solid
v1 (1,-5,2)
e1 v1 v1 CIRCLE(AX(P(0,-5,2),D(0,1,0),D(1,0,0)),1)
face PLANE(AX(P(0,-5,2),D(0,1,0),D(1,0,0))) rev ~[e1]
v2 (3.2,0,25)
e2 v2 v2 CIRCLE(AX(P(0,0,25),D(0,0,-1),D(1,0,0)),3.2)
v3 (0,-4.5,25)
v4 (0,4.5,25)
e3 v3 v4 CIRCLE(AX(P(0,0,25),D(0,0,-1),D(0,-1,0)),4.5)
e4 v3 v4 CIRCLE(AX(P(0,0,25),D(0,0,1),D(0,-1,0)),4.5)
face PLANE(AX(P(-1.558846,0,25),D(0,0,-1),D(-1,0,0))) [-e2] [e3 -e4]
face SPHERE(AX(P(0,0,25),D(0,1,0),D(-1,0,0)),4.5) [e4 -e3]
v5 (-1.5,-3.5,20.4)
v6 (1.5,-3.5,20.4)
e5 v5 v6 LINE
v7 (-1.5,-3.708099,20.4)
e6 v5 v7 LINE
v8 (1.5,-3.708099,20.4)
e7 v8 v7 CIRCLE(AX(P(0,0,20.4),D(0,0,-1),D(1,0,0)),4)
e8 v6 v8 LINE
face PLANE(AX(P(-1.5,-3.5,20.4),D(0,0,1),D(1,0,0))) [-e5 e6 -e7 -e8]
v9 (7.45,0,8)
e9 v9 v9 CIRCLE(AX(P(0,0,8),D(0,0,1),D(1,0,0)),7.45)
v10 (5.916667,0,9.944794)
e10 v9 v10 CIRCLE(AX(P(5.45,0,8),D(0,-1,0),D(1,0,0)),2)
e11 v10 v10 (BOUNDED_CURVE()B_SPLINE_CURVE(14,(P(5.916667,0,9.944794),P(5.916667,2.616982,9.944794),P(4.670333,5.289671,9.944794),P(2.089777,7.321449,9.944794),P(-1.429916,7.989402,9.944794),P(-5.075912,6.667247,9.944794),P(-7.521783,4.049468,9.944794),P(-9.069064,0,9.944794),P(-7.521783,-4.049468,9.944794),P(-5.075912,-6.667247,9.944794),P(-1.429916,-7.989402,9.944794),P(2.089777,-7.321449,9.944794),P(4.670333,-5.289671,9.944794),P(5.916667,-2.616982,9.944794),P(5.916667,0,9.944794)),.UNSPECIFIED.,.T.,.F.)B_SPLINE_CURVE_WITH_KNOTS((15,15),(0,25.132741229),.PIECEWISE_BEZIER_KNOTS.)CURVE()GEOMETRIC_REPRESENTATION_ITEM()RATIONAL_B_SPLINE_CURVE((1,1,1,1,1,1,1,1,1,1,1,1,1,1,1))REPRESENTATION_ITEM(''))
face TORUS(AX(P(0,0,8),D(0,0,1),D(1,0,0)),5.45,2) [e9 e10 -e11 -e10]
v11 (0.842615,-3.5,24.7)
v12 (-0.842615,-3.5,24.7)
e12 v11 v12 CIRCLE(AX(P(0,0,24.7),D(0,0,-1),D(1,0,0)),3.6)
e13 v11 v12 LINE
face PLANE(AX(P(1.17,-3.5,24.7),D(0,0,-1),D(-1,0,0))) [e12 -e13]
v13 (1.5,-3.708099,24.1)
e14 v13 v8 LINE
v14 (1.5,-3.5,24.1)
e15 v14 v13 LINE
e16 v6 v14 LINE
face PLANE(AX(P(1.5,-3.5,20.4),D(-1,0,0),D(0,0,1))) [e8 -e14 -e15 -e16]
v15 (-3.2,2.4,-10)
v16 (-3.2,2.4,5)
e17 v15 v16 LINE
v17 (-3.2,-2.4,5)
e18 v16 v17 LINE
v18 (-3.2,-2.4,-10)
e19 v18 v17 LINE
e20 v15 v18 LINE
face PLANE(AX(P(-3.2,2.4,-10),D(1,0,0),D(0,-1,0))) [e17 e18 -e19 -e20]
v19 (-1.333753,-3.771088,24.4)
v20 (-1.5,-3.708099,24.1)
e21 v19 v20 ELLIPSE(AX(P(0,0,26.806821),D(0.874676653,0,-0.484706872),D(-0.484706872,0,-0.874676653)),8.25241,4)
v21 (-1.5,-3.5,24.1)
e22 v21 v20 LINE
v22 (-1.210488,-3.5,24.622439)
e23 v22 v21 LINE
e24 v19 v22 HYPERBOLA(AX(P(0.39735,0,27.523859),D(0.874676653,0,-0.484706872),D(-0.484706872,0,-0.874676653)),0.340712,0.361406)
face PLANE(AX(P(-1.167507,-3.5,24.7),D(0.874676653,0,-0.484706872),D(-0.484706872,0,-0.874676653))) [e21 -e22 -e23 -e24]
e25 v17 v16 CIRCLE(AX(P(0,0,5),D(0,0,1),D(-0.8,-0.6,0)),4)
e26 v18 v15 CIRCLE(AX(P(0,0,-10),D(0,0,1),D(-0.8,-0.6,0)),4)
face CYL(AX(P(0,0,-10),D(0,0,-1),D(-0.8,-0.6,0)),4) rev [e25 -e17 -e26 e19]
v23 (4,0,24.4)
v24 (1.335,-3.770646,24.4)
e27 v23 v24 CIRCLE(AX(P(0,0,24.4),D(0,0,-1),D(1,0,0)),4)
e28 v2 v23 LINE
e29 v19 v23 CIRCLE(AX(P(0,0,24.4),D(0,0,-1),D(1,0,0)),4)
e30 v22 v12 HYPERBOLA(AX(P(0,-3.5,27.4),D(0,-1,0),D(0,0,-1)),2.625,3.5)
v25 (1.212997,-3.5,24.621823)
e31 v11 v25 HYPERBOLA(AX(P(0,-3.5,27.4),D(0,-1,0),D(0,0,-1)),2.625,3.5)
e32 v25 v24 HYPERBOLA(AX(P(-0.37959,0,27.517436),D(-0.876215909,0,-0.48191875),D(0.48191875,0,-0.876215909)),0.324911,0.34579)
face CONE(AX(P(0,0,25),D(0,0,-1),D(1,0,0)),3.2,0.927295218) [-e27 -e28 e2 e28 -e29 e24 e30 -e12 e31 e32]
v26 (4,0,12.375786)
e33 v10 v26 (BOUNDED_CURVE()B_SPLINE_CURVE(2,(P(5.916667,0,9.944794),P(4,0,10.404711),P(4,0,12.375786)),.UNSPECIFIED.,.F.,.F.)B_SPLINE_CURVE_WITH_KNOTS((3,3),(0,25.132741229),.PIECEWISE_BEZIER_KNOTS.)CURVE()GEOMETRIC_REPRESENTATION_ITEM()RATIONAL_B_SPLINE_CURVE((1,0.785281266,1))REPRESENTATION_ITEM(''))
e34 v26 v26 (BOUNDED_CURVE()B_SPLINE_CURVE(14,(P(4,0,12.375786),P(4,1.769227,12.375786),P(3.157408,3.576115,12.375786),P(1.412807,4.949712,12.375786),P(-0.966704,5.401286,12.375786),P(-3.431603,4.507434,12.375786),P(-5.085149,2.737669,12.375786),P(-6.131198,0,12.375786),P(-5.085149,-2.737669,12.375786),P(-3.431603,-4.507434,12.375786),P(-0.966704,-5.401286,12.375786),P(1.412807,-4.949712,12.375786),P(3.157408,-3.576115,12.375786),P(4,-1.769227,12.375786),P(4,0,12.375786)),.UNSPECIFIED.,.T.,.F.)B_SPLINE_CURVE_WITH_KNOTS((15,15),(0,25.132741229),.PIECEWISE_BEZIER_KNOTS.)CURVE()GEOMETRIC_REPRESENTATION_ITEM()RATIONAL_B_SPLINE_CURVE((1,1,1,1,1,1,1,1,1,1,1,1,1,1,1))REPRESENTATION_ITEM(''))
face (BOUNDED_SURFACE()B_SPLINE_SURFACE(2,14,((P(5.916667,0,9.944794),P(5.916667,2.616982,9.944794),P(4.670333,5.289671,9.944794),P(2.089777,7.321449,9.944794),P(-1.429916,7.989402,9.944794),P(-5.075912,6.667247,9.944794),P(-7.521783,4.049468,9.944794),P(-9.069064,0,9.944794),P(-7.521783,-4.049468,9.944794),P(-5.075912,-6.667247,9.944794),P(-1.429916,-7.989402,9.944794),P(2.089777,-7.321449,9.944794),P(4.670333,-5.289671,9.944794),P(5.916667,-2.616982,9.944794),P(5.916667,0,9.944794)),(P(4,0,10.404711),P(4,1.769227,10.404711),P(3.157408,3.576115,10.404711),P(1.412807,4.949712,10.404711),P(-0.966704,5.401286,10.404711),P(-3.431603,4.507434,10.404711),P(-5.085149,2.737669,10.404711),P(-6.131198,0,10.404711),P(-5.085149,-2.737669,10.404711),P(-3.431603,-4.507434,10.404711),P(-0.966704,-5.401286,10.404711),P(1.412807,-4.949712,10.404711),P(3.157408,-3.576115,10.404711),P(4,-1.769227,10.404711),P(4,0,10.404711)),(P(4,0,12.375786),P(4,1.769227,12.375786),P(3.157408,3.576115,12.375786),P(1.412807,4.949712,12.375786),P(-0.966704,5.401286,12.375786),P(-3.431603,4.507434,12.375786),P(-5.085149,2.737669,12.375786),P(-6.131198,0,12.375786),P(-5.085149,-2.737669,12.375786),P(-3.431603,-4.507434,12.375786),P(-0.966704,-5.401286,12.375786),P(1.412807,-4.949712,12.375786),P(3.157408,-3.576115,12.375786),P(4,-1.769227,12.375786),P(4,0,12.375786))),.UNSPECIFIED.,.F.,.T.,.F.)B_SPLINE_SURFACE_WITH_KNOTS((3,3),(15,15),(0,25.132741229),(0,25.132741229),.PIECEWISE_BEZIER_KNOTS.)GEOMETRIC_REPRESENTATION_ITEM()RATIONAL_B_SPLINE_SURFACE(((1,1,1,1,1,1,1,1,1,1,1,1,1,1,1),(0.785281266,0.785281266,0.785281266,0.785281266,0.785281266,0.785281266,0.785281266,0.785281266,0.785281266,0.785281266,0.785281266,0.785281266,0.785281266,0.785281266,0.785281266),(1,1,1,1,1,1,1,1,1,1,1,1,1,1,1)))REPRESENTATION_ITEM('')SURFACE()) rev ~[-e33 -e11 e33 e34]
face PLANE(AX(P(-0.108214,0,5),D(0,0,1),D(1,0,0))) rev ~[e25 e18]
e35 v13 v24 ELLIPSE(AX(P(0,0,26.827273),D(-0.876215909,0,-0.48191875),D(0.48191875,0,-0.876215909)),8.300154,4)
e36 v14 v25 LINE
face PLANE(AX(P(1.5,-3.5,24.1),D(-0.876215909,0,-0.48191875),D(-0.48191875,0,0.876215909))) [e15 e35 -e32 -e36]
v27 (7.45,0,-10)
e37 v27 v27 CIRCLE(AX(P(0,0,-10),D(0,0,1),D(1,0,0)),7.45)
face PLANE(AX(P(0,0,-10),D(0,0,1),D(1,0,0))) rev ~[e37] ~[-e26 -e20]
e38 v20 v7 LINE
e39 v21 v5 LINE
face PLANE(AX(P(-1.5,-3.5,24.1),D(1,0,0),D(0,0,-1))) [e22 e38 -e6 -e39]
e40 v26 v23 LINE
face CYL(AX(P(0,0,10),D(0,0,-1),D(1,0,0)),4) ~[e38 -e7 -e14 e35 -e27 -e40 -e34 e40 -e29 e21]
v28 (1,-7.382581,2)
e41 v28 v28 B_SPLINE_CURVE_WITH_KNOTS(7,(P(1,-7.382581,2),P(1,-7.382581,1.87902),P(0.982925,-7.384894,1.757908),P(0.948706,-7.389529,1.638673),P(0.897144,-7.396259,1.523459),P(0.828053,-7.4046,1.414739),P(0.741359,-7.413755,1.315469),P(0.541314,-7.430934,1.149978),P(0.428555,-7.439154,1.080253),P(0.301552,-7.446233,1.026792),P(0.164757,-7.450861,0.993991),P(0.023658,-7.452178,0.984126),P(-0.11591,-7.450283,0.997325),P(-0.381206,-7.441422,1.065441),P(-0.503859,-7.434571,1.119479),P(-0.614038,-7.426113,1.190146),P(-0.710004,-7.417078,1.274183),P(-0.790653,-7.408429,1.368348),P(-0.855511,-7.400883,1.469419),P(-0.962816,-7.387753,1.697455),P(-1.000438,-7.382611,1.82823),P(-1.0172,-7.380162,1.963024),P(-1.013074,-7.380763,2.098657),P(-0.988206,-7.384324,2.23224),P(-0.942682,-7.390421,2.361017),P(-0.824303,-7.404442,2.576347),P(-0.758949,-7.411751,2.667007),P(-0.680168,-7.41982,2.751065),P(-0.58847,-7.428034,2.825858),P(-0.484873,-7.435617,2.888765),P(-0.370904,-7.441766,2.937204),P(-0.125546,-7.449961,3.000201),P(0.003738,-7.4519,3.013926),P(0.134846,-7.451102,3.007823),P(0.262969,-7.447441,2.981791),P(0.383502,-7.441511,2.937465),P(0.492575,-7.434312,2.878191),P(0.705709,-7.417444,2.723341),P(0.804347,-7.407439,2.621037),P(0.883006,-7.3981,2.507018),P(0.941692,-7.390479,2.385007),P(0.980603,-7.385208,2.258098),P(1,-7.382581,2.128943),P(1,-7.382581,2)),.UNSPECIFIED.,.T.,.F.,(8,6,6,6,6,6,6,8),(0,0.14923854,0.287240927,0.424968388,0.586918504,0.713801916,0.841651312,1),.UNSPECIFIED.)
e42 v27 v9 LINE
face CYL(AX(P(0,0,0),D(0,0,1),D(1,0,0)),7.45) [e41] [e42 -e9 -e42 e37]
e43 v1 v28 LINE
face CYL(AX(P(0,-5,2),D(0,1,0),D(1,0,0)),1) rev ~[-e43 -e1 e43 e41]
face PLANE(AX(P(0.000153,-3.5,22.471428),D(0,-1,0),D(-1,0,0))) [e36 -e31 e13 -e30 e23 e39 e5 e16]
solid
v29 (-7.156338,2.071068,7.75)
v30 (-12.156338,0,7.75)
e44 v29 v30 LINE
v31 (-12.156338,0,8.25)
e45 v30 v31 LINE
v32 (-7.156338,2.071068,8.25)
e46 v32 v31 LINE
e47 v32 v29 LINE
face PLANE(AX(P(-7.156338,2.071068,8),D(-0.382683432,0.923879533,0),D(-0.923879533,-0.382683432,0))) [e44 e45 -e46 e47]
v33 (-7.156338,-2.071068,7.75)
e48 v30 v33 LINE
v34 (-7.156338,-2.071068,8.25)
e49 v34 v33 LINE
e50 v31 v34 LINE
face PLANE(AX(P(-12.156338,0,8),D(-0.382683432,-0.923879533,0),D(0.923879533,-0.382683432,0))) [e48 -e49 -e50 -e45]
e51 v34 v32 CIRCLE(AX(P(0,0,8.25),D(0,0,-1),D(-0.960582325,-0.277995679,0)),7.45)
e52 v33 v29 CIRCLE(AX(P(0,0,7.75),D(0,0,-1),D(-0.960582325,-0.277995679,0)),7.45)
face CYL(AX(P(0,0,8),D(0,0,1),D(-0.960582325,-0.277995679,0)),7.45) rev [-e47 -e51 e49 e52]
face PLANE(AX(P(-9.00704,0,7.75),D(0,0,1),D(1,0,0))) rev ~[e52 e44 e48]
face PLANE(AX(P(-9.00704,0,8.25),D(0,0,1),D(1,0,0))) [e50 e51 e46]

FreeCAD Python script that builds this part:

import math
import FreeCAD as App
import Part
import Sketcher
Q = App.Units.Quantity


def edges_at(feature, points):
    """Names of the edges that pass closest to the given points."""
    edges = feature.Shape.Edges
    near = lambda p: min(range(len(edges)), key=lambda i: edges[i].distToShape(Part.Vertex(*p))[0])
    return sorted({f"Edge{near(p) + 1}" for p in points})


def add_polygon(sketch, points):
    """Adds a closed chain of lines whose ends are joined by coincident constraints."""
    first, n = sketch.GeometryCount, len(points)
    for a, b in zip(points, points[1:] + points[:1]):
        sketch.addGeometry(Part.LineSegment(App.Vector(*a, 0), App.Vector(*b, 0)), False)
    for i in range(n):
        sketch.addConstraint(Sketcher.Constraint("Coincident", first + i, 2, first + (i + 1) % n, 1))

doc = App.newDocument("Part")
body = doc.addObject("PartDesign::Body", "Body")

sketch1 = body.newObject("Sketcher::SketchObject", "Sketch")
sketch1.AttachmentSupport = (doc.getObject("XY_Plane"), [""])
sketch1.MapMode = "FlatFace"
sketch1.addGeometry(Part.Circle(App.Vector(0, 0, 0), App.Vector(0, 0, 1), 7), False)
sketch1.addConstraint([
    Sketcher.Constraint("Coincident", 0, 3, -1, 1),
    Sketcher.Constraint("Diameter", 0, 14.9),
])
pad1 = body.newObject("PartDesign::Pad", "Pad")
pad1.Profile = sketch1
pad1.Length = 20
pad1.Midplane = True

sketch2 = body.newObject("Sketcher::SketchObject", "Sketch001")
sketch2.AttachmentSupport = (doc.getObject("XY_Plane"), [""])
sketch2.MapMode = "FlatFace"
sketch2.AttachmentOffset = App.Placement(App.Vector(0, 0, 10), App.Rotation())
sketch2.addGeometry(Part.Circle(App.Vector(0, 0, 0), App.Vector(0, 0, 1), 4), False)
sketch2.addConstraint([
    Sketcher.Constraint("Coincident", 0, 3, -1, 1),
    Sketcher.Constraint("Diameter", 0, 8.0),
])
pad2 = body.newObject("PartDesign::Pad", "Pad001")
pad2.Profile = sketch2
pad2.Length = 15
doc.recompute()

fillet = body.newObject("PartDesign::Fillet", "Fillet")
fillet.Base = (pad2, edges_at(pad2, [(-7.45, 0, 10)]))
fillet.Radius = 2
doc.recompute()

fillet2 = body.newObject("PartDesign::Fillet", "Fillet001")
fillet2.Base = (fillet, edges_at(fillet, [(-4, 0, 10)]))
fillet2.Radius = 2.5

sketch3 = body.newObject("Sketcher::SketchObject", "Sketch002")
sketch3.AttachmentSupport = (doc.getObject("XY_Plane"), [""])
sketch3.MapMode = "FlatFace"
sketch3.AttachmentOffset = App.Placement(App.Vector(0, 0, 25), App.Rotation())
sketch3.addGeometry([
    Part.LineSegment(App.Vector(0, -4.5, 0), App.Vector(0, 4.5, 0)),
    Part.ArcOfCircle(Part.Circle(App.Vector(0, 0, 0), App.Vector(0, 0, 1), 4.5), math.radians(90), math.radians(270)),
], False)
sketch3.addConstraint([
    Sketcher.Constraint("Coincident", 0, 1, 1, 2),
    Sketcher.Constraint("Coincident", 1, 1, 0, 2),
    Sketcher.Constraint("Vertical", 0),
    Sketcher.Constraint("Coincident", 1, 3, -1, 1),
    Sketcher.Constraint("PointOnObject", 0, 1, -2),
    Sketcher.Constraint("Radius", 1, 4.5),
])
revolution = body.newObject("PartDesign::Revolution", "Revolution")
revolution.Profile = sketch3
revolution.ReferenceAxis = (sketch3, ["V_Axis"])
revolution.Angle = 180

sketch4 = body.newObject("Sketcher::SketchObject", "Sketch003")
sketch4.AttachmentSupport = (doc.getObject("XZ_Plane"), [""])
sketch4.MapMode = "FlatFace"
add_polygon(sketch4, [(3.2, 25), (4, 25), (4, 24.4)])
sketch4.addConstraint([
    Sketcher.Constraint("Horizontal", 0),
    Sketcher.Constraint("Vertical", 1),
    Sketcher.Constraint("Distance", 2, 1.0),
    Sketcher.Constraint("DistanceX", 0, 1, 0, 2, 0.8),
    Sketcher.Constraint("DistanceX", -1, 1, 0, 2, 4.0),
    Sketcher.Constraint("DistanceY", -1, 1, 0, 2, 25.0),
])
groove = body.newObject("PartDesign::Groove", "Groove")
groove.Profile = sketch4
groove.ReferenceAxis = (sketch4, ["V_Axis"])
groove.Angle = 360

sketch5 = body.newObject("Sketcher::SketchObject", "Sketch004")
sketch5.AttachmentSupport = (doc.getObject("XZ_Plane"), [""])
sketch5.MapMode = "FlatFace"
sketch5.AttachmentOffset = App.Placement(App.Vector(0, 0, 3.5), App.Rotation())
add_polygon(sketch5, [(-1.5, 20.4), (-1.5, 24.1), (-1.2, 24.7), (1.2, 24.7), (1.5, 24.1), (1.5, 20.4)])
sketch5.addConstraint([
    Sketcher.Constraint("Vertical", 0),
    Sketcher.Constraint("Horizontal", 2),
    Sketcher.Constraint("Vertical", 4),
    Sketcher.Constraint("Horizontal", 5),
    Sketcher.Constraint("Symmetric", 0, 2, 3, 2, -2),
    Sketcher.Constraint("DistanceX", 5, 2, 5, 1, 3.0),
    Sketcher.Constraint("DistanceY", 0, 1, 0, 2, 3.7),
    Sketcher.Constraint("DistanceY", -1, 1, 0, 2, 24.1),
    Sketcher.Constraint("DistanceY", -1, 1, 1, 2, 24.7),
    Sketcher.Constraint("DistanceX", -1, 1, 2, 2, 1.17),
    Sketcher.Constraint("DistanceX", 2, 1, 2, 2, 2.337507),
])
pocket1 = body.newObject("PartDesign::Pocket", "Pocket")
pocket1.Profile = sketch5
pocket1.Length = 1
pocket1.Reversed = True

sketch6 = body.newObject("Sketcher::SketchObject", "Sketch005")
sketch6.AttachmentSupport = (doc.getObject("XZ_Plane"), [""])
sketch6.MapMode = "FlatFace"
sketch6.AttachmentOffset = App.Placement(App.Vector(0, 0, 5), App.Rotation())
sketch6.addGeometry(Part.Circle(App.Vector(0, 2, 0), App.Vector(0, 0, 1), 1), False)
sketch6.addConstraint([
    Sketcher.Constraint("PointOnObject", 0, 3, -2),
    Sketcher.Constraint("Diameter", 0, 2.0),
    Sketcher.Constraint("DistanceY", -1, 1, 0, 3, 2.0),
])
pocket2 = body.newObject("PartDesign::Pocket", "Pocket001")
pocket2.Profile = sketch6
pocket2.Length = 5
pocket2.Reversed = True

sketch7 = body.newObject("Sketcher::SketchObject", "Sketch006")
sketch7.AttachmentSupport = (doc.getObject("XY_Plane"), [""])
sketch7.MapMode = "FlatFace"
sketch7.AttachmentOffset = App.Placement(App.Vector(0, 0, -10), App.Rotation())
sketch7.addGeometry([
    Part.LineSegment(App.Vector(-3.2, -2.4, 0), App.Vector(-3.2, 2.4, 0)),
    Part.ArcOfCircle(Part.Circle(App.Vector(0, 0, 0), App.Vector(0, 0, 1), 4), math.radians(-143), math.radians(143)),
], False)
sketch7.addConstraint([
    Sketcher.Constraint("Coincident", 0, 1, 1, 1),
    Sketcher.Constraint("Coincident", 1, 2, 0, 2),
    Sketcher.Constraint("Vertical", 0),
    Sketcher.Constraint("Coincident", 1, 3, -1, 1),
    Sketcher.Constraint("Radius", 1, 4.0),
    Sketcher.Constraint("DistanceY", 0, 1, 0, 2, 4.8),
])
pocket3 = body.newObject("PartDesign::Pocket", "Pocket002")
pocket3.Profile = sketch7
pocket3.Length = 15
pocket3.Reversed = True
body2 = doc.addObject("PartDesign::Body", "Body001")

sketch8 = body2.newObject("Sketcher::SketchObject", "Sketch007")
sketch8.AttachmentSupport = (doc.getObject("XY_Plane001"), [""])
sketch8.MapMode = "FlatFace"
sketch8.AttachmentOffset = App.Placement(App.Vector(0, 0, 8), App.Rotation())
sketch8.addGeometry([
    Part.LineSegment(App.Vector(-7.2, 2.1, 0), App.Vector(-12.2, 0, 0)),
    Part.LineSegment(App.Vector(-12.2, 0, 0), App.Vector(-7.2, -2.1, 0)),
    Part.ArcOfCircle(Part.Circle(App.Vector(0, 0, 0), App.Vector(0, 0, 1), 7.5), math.radians(164), math.radians(196)),
], False)
sketch8.addConstraint([
    Sketcher.Constraint("Coincident", 0, 2, 1, 1),
    Sketcher.Constraint("Coincident", 1, 2, 2, 2),
    Sketcher.Constraint("Coincident", 2, 1, 0, 1),
    Sketcher.Constraint("Coincident", 2, 3, -1, 1),
    Sketcher.Constraint("PointOnObject", 0, 2, -1),
    Sketcher.Constraint("Vertical", 1, 2, 2, 1),
    Sketcher.Constraint("Radius", 2, 7.45),
    Sketcher.Constraint("Angle", 0, Q("-157.5 deg")),
    Sketcher.Constraint("DistanceX", 0, 2, 1, 2, 5.0),
])
pad3 = body2.newObject("PartDesign::Pad", "Pad002")
pad3.Profile = sketch8
pad3.Length = 0.5
pad3.Midplane = True

doc.recompute()
